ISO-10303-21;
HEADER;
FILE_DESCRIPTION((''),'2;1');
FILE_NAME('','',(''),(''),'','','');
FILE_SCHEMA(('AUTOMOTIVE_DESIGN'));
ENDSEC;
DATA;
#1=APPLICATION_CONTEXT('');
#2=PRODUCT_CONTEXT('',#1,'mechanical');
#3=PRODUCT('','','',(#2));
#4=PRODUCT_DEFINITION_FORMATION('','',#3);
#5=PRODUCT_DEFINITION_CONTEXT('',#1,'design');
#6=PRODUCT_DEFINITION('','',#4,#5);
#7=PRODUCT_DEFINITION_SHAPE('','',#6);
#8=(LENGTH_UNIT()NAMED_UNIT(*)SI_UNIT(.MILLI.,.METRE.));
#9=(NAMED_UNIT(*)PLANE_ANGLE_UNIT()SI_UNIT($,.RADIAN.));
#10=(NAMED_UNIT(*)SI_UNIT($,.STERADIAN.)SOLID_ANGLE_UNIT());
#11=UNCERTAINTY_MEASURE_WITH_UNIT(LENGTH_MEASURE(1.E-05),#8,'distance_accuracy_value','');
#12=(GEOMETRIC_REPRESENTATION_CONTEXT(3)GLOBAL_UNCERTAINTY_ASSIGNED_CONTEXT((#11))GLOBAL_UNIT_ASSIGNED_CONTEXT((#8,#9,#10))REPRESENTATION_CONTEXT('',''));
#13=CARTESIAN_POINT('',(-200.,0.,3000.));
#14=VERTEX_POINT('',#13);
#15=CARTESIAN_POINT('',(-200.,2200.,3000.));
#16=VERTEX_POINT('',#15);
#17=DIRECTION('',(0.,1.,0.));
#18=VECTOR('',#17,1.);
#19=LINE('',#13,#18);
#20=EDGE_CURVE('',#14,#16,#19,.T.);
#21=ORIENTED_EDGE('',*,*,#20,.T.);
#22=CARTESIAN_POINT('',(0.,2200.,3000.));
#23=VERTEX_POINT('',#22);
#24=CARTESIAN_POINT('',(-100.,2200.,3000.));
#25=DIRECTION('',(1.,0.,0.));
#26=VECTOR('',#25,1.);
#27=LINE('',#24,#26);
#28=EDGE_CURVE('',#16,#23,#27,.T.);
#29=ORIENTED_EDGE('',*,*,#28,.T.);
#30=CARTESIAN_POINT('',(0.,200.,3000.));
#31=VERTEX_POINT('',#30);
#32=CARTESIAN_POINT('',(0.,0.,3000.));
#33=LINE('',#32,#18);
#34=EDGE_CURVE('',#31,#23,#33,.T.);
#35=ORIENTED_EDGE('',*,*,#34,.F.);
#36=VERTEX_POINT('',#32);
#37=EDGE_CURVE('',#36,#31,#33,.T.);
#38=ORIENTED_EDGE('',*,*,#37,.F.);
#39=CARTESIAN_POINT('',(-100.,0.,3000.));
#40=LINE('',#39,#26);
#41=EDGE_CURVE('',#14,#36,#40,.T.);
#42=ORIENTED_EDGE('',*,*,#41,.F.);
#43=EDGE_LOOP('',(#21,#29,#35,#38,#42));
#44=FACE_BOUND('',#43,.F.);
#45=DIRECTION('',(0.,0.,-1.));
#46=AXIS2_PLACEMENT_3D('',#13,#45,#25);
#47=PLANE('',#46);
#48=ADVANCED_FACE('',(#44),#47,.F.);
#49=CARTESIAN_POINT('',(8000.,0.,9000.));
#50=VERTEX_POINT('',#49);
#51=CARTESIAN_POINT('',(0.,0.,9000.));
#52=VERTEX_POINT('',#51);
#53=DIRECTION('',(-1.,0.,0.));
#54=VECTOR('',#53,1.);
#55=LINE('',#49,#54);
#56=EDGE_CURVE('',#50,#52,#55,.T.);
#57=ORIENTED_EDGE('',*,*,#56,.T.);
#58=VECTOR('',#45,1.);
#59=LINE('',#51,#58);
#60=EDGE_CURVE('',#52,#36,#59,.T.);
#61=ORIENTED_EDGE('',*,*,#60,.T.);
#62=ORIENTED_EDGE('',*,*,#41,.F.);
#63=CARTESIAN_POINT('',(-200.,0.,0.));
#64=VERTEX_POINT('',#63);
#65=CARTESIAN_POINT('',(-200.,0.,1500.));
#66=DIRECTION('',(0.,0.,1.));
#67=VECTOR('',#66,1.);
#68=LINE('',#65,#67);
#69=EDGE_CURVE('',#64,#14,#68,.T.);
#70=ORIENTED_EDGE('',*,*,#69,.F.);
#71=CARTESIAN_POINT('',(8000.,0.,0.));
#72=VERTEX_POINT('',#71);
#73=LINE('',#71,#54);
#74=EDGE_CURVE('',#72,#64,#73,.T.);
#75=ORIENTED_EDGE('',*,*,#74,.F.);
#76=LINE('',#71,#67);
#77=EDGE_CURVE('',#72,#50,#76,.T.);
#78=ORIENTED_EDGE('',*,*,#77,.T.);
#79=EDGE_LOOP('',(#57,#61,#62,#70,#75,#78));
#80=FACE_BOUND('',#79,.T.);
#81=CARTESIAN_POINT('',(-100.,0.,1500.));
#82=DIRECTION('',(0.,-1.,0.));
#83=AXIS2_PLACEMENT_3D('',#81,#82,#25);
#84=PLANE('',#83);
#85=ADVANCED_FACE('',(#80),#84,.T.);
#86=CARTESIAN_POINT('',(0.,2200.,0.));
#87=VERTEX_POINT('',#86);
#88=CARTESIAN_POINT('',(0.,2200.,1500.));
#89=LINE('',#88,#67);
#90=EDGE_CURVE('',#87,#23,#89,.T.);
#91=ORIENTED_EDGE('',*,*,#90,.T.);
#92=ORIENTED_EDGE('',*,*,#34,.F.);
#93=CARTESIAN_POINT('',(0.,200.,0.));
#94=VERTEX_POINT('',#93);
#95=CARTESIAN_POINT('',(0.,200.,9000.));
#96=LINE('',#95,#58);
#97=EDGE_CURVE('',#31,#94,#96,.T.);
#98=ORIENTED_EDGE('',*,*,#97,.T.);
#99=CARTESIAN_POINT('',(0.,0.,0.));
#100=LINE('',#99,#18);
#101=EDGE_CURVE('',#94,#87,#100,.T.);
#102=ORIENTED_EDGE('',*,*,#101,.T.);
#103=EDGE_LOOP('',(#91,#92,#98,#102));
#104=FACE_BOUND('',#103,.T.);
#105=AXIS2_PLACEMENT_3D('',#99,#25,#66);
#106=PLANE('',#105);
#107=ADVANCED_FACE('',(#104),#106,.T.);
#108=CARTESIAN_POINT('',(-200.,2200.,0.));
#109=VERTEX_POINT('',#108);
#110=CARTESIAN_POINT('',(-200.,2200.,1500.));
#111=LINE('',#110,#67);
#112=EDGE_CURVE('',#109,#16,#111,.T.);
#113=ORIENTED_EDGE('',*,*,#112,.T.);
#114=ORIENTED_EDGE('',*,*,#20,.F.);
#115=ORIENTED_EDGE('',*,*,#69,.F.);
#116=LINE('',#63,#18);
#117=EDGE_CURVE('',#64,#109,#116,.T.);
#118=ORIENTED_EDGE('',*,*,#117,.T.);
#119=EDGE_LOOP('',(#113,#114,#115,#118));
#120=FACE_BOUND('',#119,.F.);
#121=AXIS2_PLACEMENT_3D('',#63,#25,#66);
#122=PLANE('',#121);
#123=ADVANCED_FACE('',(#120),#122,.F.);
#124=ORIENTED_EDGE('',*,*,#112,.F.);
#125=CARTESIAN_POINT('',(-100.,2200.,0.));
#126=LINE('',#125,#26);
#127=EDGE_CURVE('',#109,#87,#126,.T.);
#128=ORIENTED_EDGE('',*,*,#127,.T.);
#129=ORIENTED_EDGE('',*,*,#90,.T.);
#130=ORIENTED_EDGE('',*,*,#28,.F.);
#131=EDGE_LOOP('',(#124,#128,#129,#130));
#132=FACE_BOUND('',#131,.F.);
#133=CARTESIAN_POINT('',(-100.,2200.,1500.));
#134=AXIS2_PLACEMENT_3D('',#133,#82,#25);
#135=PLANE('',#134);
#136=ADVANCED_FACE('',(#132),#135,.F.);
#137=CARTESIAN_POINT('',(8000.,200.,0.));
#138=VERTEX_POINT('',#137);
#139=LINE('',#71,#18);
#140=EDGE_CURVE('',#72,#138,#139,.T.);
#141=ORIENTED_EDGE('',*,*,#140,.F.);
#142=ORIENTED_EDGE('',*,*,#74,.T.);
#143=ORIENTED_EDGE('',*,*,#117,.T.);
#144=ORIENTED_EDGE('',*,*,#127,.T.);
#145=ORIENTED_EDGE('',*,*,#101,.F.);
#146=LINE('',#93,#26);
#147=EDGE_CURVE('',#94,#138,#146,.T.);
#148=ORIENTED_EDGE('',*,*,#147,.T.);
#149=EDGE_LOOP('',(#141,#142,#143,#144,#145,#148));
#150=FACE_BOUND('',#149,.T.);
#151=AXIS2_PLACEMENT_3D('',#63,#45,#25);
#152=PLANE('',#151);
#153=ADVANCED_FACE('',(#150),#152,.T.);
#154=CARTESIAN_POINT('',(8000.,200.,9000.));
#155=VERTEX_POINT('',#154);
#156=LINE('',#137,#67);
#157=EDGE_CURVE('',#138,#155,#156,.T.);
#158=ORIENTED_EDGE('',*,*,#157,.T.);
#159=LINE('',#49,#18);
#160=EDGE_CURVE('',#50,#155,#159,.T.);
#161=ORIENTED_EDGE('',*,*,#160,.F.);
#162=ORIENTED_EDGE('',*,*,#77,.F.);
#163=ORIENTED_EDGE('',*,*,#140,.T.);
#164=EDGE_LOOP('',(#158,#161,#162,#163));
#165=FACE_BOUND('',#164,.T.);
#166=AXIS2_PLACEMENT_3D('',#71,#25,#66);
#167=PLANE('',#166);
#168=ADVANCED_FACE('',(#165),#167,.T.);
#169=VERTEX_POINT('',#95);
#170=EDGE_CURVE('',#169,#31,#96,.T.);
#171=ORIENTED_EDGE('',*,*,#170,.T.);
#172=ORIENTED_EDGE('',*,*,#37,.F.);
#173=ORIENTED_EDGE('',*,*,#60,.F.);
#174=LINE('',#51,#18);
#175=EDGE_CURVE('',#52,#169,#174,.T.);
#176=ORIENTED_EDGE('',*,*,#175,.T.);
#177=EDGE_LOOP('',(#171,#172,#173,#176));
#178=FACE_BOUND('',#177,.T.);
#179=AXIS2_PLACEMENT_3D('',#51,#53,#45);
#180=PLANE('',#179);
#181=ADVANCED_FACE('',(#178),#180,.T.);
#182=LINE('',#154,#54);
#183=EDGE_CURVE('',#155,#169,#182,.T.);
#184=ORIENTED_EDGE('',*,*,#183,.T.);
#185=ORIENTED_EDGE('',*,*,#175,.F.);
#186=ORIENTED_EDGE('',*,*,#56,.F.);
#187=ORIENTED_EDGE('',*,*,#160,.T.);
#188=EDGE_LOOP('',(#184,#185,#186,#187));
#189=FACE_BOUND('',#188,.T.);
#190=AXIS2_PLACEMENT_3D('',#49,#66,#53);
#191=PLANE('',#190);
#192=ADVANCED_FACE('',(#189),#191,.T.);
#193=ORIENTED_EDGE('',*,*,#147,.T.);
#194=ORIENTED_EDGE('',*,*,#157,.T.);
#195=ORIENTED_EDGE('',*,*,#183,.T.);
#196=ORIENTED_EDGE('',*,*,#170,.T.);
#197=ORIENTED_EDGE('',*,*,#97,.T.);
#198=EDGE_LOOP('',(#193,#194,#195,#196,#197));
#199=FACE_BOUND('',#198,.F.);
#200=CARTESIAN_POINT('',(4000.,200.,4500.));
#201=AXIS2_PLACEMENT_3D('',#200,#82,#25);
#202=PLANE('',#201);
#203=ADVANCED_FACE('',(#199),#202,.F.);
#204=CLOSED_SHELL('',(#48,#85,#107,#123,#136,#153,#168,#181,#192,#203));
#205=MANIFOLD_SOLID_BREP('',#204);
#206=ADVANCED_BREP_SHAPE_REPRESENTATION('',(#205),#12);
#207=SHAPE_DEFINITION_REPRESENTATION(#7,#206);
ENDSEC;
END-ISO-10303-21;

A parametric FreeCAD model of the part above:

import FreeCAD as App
import Part
import Sketcher
Q = App.Units.Quantity


def add_polygon(sketch, points):
    """Adds a closed chain of lines whose ends are joined by coincident constraints."""
    first, n = sketch.GeometryCount, len(points)
    for a, b in zip(points, points[1:] + points[:1]):
        sketch.addGeometry(Part.LineSegment(App.Vector(*a, 0), App.Vector(*b, 0)), False)
    for i in range(n):
        sketch.addConstraint(Sketcher.Constraint("Coincident", first + i, 2, first + (i + 1) % n, 1))

doc = App.newDocument("Part")
body = doc.addObject("PartDesign::Body", "Body")

# Sketch on XZ plane
sketch1 = doc.addObject("Sketcher::SketchObject", "Sketch")
body.addObject(sketch1)
sketch1.AttachmentSupport = (doc.XZ_Plane, [""])
sketch1.MapMode = "FlatFace"
add_polygon(sketch1, [(0, 0), (8000, 0), (8000, 9000), (0, 9000)])  # lines 0-3
sketch1.addConstraint(Sketcher.Constraint("Horizontal", 0))
sketch1.addConstraint(Sketcher.Constraint("Vertical", 1))
sketch1.addConstraint(Sketcher.Constraint("Horizontal", 2))
sketch1.addConstraint(Sketcher.Constraint("Vertical", 3))
sketch1.addConstraint(Sketcher.Constraint("Coincident", 3, 2, -1, 1))
sketch1.addConstraint(Sketcher.Constraint("DistanceX", 0, 1, 0, 2, Q("8000 mm")))
sketch1.addConstraint(Sketcher.Constraint("DistanceY", 1, 1, 1, 2, Q("9000 mm")))
pad1 = doc.addObject("PartDesign::Pad", "Pad")
body.addObject(pad1)
pad1.Profile = sketch1
pad1.Length = 200
pad1.Reversed = True

# Sketch on XZ plane
sketch2 = doc.addObject("Sketcher::SketchObject", "Sketch001")
body.addObject(sketch2)
sketch2.AttachmentSupport = (doc.XZ_Plane, [""])
sketch2.MapMode = "FlatFace"
add_polygon(sketch2, [(-200, 3000), (-200, 0), (0, 0), (0, 3000)])  # lines 0-3
sketch2.addConstraint(Sketcher.Constraint("Vertical", 0))
sketch2.addConstraint(Sketcher.Constraint("Horizontal", 1))
sketch2.addConstraint(Sketcher.Constraint("Vertical", 2))
sketch2.addConstraint(Sketcher.Constraint("Horizontal", 3))
sketch2.addConstraint(Sketcher.Constraint("Coincident", 1, 2, -1, 1))
sketch2.addConstraint(Sketcher.Constraint("DistanceX", 1, 1, 1, 2, Q("200 mm")))
sketch2.addConstraint(Sketcher.Constraint("DistanceY", 0, 2, 0, 1, Q("3000 mm")))
pad2 = doc.addObject("PartDesign::Pad", "Pad001")
body.addObject(pad2)
pad2.Profile = sketch2
pad2.Length = 2200
pad2.Reversed = True

doc.recompute()
